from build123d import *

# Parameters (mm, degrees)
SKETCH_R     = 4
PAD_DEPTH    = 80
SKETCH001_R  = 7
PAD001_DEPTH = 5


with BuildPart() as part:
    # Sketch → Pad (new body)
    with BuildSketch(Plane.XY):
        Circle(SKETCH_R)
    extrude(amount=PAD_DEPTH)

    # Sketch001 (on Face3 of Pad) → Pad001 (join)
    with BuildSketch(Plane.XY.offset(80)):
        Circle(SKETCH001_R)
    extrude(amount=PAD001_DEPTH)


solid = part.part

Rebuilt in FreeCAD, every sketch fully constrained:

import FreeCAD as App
import Part
import Sketcher
from FreeCAD import Vector

doc = App.newDocument("Part")
body = doc.addObject("PartDesign::Body", "Body")

# Sketch on XY plane
sketch1 = body.newObject("Sketcher::SketchObject", "Sketch")
sketch1.AttachmentSupport = (doc.getObject("XY_Plane"), [""])
sketch1.MapMode = "FlatFace"
sketch1.addGeometry(Part.Circle(Vector(0, 0, 0), Vector(0, 0, 1), 4), False)
sketch1.addConstraint(Sketcher.Constraint("Coincident", 0, 3, -1, 1))
sketch1.addConstraint(Sketcher.Constraint("Diameter", 0, 8.0))
pad1 = body.newObject("PartDesign::Pad", "Pad")
pad1.Profile = sketch1
pad1.Length = 80

# Sketch on XY plane
sketch2 = body.newObject("Sketcher::SketchObject", "Sketch001")
sketch2.AttachmentSupport = (doc.getObject("XY_Plane"), [""])
sketch2.MapMode = "FlatFace"
sketch2.AttachmentOffset = App.Placement(Vector(0, 0, 80), App.Rotation())
sketch2.addGeometry(Part.Circle(Vector(0, 0, 0), Vector(0, 0, 1), 7), False)
sketch2.addConstraint(Sketcher.Constraint("Coincident", 0, 3, -1, 1))
sketch2.addConstraint(Sketcher.Constraint("Diameter", 0, 14.0))
pad2 = body.newObject("PartDesign::Pad", "Pad001")
pad2.Profile = sketch2
pad2.Length = 5

doc.recompute()
